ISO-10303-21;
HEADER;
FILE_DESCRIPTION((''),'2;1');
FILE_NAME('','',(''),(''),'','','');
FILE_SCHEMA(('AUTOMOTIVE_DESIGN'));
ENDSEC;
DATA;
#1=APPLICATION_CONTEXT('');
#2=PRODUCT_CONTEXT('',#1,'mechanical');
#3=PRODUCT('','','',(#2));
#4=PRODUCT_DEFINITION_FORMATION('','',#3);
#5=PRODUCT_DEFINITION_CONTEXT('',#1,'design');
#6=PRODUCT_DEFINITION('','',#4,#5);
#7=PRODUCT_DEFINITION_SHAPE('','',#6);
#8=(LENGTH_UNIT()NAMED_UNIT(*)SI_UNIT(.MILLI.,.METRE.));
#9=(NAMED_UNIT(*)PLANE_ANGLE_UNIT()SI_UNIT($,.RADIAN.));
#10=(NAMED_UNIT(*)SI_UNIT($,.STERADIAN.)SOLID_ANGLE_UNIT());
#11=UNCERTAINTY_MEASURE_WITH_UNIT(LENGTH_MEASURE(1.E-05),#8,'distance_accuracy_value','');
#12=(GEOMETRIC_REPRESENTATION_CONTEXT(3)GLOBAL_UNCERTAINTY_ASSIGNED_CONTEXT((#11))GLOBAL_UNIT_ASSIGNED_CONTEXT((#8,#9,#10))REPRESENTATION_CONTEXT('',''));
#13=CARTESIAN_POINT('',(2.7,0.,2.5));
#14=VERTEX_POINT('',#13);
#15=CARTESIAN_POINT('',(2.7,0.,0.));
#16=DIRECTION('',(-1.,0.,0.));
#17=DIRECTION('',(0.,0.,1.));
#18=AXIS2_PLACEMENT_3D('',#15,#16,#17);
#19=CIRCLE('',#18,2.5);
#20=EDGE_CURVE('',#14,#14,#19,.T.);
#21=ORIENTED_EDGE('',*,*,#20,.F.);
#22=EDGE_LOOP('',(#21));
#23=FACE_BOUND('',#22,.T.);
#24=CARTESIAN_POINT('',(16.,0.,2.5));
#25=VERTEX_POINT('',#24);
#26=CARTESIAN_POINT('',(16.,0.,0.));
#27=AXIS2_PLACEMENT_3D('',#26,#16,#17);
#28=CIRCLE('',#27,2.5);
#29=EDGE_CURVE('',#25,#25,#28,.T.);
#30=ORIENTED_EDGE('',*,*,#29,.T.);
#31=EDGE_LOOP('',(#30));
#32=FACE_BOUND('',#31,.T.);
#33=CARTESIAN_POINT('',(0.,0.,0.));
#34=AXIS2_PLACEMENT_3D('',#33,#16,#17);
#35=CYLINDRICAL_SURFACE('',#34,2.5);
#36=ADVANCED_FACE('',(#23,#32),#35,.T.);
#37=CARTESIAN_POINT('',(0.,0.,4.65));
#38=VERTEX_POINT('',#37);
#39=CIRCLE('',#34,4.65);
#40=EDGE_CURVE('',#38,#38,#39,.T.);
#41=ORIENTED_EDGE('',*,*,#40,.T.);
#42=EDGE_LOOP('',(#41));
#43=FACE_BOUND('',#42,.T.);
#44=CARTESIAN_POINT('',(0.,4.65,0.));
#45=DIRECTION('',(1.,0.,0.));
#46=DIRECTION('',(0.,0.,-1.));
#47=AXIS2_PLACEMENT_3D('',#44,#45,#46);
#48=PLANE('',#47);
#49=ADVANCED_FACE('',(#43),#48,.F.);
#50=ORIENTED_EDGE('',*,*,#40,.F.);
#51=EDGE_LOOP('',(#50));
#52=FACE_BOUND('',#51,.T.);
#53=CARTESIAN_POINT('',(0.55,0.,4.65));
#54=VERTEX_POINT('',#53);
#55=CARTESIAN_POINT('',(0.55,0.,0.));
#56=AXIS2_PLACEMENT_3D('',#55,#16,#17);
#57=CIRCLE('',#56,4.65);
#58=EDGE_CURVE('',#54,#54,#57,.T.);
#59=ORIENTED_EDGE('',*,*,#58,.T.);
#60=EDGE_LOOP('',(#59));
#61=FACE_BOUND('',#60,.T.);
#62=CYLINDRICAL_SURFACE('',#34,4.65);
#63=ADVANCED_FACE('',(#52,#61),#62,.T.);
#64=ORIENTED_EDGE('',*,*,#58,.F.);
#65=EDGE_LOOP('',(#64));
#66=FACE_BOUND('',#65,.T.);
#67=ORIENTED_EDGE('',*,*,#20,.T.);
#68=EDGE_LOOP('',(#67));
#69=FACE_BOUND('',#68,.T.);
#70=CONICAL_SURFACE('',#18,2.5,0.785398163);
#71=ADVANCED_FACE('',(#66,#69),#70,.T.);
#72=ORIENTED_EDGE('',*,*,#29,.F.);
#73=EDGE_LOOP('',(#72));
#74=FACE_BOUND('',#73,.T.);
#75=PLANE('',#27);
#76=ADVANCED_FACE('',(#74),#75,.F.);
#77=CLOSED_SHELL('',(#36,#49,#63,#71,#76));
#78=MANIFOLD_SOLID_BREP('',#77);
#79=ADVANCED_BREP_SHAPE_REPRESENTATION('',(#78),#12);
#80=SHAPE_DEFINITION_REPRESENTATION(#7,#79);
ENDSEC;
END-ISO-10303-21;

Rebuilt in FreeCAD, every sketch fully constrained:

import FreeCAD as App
import Part
import Sketcher

V = App.Vector
Q = App.Units.Quantity

doc = App.newDocument("Part")
params = doc.addObject("Spreadsheet::Sheet", "Params")
for row, (alias, value) in enumerate([
    ("sketch1_width", "16 mm"),
    ("sketch1_width2", "13.3 mm"),
    ("sketch1_height", "2.5 mm"),
    ("sketch1_width3", "0.55 mm"),
    ("revolution_angle", "360 deg"),
], start=1):
    params.set(f"A{row}", alias)
    params.set(f"B{row}", "=" + value)
    params.setAlias(f"B{row}", alias)

body = doc.addObject("PartDesign::Body", "Body")

# Sketch on XY plane
sketch1 = doc.addObject("Sketcher::SketchObject", "Sketch")
body.addObject(sketch1)
sketch1.AttachmentSupport = (doc.XY_Plane, [""])
sketch1.MapMode = "FlatFace"
sketch1.addGeometry(Part.LineSegment(V(0, 0, 0), V(16, 0, 0)), False)
sketch1.addGeometry(Part.LineSegment(V(16, 0, 0), V(16, 2.5, 0)), False)
sketch1.addGeometry(Part.LineSegment(V(16, 2.5, 0), V(2.7, 2.5, 0)), False)
sketch1.addGeometry(Part.LineSegment(V(2.7, 2.5, 0), V(0.6, 4.7, 0)), False)
sketch1.addGeometry(Part.LineSegment(V(0.6, 4.7, 0), V(0, 4.7, 0)), False)
sketch1.addGeometry(Part.LineSegment(V(0, 4.7, 0), V(0, 0, 0)), False)
sketch1.addConstraint(Sketcher.Constraint("Coincident", 0, 2, 1, 1))
sketch1.addConstraint(Sketcher.Constraint("Coincident", 1, 2, 2, 1))
sketch1.addConstraint(Sketcher.Constraint("Coincident", 2, 2, 3, 1))
sketch1.addConstraint(Sketcher.Constraint("Coincident", 3, 2, 4, 1))
sketch1.addConstraint(Sketcher.Constraint("Coincident", 4, 2, 5, 1))
sketch1.addConstraint(Sketcher.Constraint("Coincident", 5, 2, 0, 1))
sketch1.addConstraint(Sketcher.Constraint("Horizontal", 0))
sketch1.addConstraint(Sketcher.Constraint("Vertical", 1))
sketch1.addConstraint(Sketcher.Constraint("Horizontal", 2))
sketch1.addConstraint(Sketcher.Constraint("Horizontal", 4))
sketch1.addConstraint(Sketcher.Constraint("Vertical", 5))
sketch1.addConstraint(Sketcher.Constraint("Coincident", 5, 2, -1, 1))
sketch1.addConstraint(Sketcher.Constraint("DistanceX", 0, 1, 0, 2, Q("16 mm")))
sketch1.addConstraint(Sketcher.Constraint("Angle", 3, Q("135 deg")))
sketch1.addConstraint(Sketcher.Constraint("DistanceX", 2, 2, 2, 1, Q("13.3 mm")))
sketch1.addConstraint(Sketcher.Constraint("DistanceY", 1, 1, 1, 2, Q("2.5 mm")))
sketch1.addConstraint(Sketcher.Constraint("DistanceX", 4, 2, 4, 1, Q("0.55 mm")))
sketch1.setExpression("Constraints[12]", "Params.sketch1_width")
sketch1.setExpression("Constraints[14]", "Params.sketch1_width2")
sketch1.setExpression("Constraints[15]", "Params.sketch1_height")
sketch1.setExpression("Constraints[16]", "Params.sketch1_width3")
revolution = doc.addObject("PartDesign::Revolution", "Revolution")
body.addObject(revolution)
revolution.Profile = sketch1
revolution.ReferenceAxis = (sketch1, ["H_Axis"])
revolution.setExpression("Angle", "Params.revolution_angle")

doc.recompute()
